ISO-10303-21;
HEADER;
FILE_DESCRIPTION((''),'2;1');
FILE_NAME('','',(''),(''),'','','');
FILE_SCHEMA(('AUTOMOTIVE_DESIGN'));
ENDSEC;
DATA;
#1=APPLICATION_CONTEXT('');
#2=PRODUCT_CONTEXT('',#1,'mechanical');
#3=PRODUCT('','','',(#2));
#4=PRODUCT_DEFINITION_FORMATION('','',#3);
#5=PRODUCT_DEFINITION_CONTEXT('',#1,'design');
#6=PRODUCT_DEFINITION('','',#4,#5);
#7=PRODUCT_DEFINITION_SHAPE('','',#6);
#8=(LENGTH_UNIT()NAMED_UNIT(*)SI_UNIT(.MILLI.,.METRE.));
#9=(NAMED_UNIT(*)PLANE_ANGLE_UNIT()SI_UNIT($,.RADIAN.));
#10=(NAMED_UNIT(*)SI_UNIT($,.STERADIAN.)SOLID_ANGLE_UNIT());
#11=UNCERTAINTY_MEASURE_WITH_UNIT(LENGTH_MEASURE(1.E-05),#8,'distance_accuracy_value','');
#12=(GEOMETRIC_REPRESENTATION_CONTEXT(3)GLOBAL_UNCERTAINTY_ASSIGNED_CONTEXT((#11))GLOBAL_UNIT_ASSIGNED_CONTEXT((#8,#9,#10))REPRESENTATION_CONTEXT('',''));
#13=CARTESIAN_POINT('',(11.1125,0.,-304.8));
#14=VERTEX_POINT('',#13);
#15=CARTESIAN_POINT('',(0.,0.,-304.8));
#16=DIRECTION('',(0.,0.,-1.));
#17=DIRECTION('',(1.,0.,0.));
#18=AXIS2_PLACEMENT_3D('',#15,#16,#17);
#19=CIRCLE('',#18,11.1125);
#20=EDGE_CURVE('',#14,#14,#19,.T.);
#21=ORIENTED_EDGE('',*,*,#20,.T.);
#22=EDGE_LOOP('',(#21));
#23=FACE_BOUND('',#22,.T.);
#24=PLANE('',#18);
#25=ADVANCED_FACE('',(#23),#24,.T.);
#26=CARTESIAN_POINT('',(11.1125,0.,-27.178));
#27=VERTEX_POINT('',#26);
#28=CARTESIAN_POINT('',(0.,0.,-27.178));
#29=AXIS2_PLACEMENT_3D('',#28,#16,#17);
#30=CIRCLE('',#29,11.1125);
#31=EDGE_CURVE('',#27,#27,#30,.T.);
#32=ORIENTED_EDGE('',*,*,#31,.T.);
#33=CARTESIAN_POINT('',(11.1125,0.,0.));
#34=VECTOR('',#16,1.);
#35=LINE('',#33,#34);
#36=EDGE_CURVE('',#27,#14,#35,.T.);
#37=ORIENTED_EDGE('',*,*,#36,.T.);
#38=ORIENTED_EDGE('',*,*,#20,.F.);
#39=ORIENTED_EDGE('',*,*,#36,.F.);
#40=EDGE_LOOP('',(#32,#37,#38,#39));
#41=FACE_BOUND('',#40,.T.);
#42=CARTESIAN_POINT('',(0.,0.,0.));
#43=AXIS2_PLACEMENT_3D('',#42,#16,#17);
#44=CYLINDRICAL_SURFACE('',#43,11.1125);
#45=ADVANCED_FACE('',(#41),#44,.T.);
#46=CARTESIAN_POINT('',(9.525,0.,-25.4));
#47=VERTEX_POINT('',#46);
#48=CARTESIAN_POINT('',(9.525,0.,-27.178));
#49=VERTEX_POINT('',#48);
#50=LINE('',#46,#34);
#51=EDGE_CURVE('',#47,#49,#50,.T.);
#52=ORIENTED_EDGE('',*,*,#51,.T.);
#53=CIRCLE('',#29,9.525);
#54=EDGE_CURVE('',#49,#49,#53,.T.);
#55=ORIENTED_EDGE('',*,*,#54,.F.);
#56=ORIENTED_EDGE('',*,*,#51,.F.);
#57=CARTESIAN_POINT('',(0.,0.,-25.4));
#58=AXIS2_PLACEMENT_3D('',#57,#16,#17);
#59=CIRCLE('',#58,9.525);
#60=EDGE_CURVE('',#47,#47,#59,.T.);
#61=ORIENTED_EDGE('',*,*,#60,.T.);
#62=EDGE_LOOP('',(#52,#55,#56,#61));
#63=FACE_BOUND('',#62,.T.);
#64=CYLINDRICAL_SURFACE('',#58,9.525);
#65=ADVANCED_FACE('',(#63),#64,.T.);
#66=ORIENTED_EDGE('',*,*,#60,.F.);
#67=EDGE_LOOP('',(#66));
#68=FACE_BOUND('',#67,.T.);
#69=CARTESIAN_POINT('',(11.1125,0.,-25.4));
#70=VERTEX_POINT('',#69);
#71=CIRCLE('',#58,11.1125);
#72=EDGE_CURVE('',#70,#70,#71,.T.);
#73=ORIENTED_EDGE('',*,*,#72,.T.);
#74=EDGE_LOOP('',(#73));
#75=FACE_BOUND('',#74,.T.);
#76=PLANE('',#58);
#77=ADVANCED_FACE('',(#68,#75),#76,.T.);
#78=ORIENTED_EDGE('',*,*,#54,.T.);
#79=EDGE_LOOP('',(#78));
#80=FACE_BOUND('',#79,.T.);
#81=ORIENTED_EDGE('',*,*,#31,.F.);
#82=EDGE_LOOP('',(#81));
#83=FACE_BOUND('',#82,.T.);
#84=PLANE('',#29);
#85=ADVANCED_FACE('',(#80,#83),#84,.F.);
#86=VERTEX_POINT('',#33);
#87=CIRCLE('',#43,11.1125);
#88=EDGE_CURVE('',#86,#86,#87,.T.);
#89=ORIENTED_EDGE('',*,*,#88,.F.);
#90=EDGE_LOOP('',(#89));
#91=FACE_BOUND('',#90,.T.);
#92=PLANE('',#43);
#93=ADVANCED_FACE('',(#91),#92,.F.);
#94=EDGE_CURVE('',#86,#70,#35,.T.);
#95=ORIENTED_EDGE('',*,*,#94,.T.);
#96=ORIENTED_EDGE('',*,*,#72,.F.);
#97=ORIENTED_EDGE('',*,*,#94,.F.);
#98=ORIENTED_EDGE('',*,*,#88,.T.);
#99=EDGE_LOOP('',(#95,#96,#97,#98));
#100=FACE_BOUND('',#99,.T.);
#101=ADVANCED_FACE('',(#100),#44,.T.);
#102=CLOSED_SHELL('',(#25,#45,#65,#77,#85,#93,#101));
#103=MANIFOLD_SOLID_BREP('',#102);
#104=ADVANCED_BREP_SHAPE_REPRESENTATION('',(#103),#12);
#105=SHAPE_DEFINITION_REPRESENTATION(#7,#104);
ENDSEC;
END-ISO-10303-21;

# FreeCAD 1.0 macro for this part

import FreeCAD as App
import Part
import Sketcher
Q = App.Units.Quantity


def add_polygon(sketch, points):
    """Adds a closed chain of lines whose ends are joined by coincident constraints."""
    first, n = sketch.GeometryCount, len(points)
    for a, b in zip(points, points[1:] + points[:1]):
        sketch.addGeometry(Part.LineSegment(App.Vector(*a, 0), App.Vector(*b, 0)), False)
    for i in range(n):
        sketch.addConstraint(Sketcher.Constraint("Coincident", first + i, 2, first + (i + 1) % n, 1))

doc = App.newDocument("Part")
params = doc.addObject("Spreadsheet::Sheet", "Params")
for row, (alias, value) in enumerate([
    ("sketch1_height", "12 in"),
    ("sketch1_height2", "1 in"),
    ("sketch1_height3", "0.07 in"),
    ("sketch1_width", "0.4375 in"),
    ("sketch1_width2", "0.0625 in"),
    ("revolution_angle", "360 deg"),
], start=1):
    params.set(f"A{row}", alias)
    params.set(f"B{row}", "=" + value)
    params.setAlias(f"B{row}", alias)

body = doc.addObject("PartDesign::Body", "Body")

# Sketch on XZ plane
sketch1 = doc.addObject("Sketcher::SketchObject", "Sketch")
body.addObject(sketch1)
sketch1.AttachmentSupport = (doc.XZ_Plane, [""])
sketch1.MapMode = "FlatFace"
add_polygon(sketch1, [(0, -304.8), (0, 0), (11.1, 0), (11.1, -25.4), (9.5, -25.4), (9.5, -27.2), (11.1, -27.2), (11.1, -304.8)])  # lines 0-7
sketch1.addConstraint([
    Sketcher.Constraint("Vertical", 0),
    Sketcher.Constraint("Horizontal", 1),
    Sketcher.Constraint("Vertical", 2),
    Sketcher.Constraint("Horizontal", 3),
    Sketcher.Constraint("Vertical", 4),
    Sketcher.Constraint("Horizontal", 5),
    Sketcher.Constraint("Vertical", 6),
    Sketcher.Constraint("Horizontal", 7),
    Sketcher.Constraint("Coincident", 0, 2, -1, 1),
    Sketcher.Constraint("Vertical", 2, 2, 5, 2),
    Sketcher.Constraint("DistanceY", 0, 1, 0, 2, Q("12 in")),
    Sketcher.Constraint("DistanceY", 2, 2, 2, 1, Q("1 in")),
    Sketcher.Constraint("DistanceY", 4, 2, 4, 1, Q("0.07 in")),
    Sketcher.Constraint("DistanceX", 1, 1, 1, 2, Q("0.4375 in")),
    Sketcher.Constraint("DistanceX", 3, 2, 3, 1, Q("0.0625 in")),
])
sketch1.setExpression("Constraints[18]", "Params.sketch1_height")
sketch1.setExpression("Constraints[19]", "Params.sketch1_height2")
sketch1.setExpression("Constraints[20]", "Params.sketch1_height3")
sketch1.setExpression("Constraints[21]", "Params.sketch1_width")
sketch1.setExpression("Constraints[22]", "Params.sketch1_width2")
revolution = doc.addObject("PartDesign::Revolution", "Revolution")
body.addObject(revolution)
revolution.Profile = sketch1
revolution.ReferenceAxis = (sketch1, ["V_Axis"])
revolution.setExpression("Angle", "Params.revolution_angle")

doc.recompute()
